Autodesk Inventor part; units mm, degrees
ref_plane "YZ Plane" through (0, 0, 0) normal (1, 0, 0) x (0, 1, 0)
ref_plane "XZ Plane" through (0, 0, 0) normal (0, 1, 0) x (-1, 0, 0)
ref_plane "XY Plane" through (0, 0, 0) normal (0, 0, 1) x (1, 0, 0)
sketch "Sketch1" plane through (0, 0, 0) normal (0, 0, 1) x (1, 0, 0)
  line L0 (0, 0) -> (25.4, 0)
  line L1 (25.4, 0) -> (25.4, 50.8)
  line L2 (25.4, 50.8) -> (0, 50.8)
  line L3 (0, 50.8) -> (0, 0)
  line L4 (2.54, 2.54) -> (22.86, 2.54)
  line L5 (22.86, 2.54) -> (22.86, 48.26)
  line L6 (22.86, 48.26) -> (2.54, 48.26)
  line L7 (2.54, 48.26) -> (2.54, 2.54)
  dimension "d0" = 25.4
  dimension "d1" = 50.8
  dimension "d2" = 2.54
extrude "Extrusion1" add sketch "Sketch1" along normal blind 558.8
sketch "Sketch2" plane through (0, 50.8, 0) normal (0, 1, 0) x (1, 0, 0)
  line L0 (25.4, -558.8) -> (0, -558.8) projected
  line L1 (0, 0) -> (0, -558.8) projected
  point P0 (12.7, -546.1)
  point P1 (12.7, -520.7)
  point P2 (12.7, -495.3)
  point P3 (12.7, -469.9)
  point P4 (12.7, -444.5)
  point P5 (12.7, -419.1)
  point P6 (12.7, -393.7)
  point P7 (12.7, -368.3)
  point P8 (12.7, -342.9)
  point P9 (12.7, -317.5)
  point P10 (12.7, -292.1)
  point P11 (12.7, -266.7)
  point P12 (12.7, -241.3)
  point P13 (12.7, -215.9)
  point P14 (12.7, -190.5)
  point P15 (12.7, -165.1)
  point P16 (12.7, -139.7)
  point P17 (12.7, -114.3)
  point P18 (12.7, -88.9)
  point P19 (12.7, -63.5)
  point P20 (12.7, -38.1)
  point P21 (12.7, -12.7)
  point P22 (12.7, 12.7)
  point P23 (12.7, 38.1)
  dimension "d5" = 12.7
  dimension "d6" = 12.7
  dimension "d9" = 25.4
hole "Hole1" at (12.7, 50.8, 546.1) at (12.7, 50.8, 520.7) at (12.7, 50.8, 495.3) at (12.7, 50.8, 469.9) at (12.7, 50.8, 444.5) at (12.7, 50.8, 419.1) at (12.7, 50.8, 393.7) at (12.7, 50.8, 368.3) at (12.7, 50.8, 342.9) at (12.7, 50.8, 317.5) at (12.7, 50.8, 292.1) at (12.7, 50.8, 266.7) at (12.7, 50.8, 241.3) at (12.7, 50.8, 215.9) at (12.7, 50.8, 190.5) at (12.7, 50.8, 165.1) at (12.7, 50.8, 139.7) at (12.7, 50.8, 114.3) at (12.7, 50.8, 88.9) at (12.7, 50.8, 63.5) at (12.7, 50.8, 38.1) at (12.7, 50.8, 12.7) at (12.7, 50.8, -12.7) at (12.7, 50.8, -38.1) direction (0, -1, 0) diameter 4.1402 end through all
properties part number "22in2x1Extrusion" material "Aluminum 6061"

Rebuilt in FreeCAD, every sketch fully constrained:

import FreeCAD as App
import Part
import Sketcher

V = App.Vector
Q = App.Units.Quantity

doc = App.newDocument("Part")
body = doc.addObject("PartDesign::Body", "Body")

sketch1 = body.newObject("Sketcher::SketchObject", "Sketch")
sketch1.AttachmentSupport = (doc.getObject("XY_Plane"), [""])
sketch1.MapMode = "FlatFace"
sketch1.addGeometry(Part.LineSegment(V(0, 51, 0), V(0, 0, 0)), False)
sketch1.addGeometry(Part.LineSegment(V(0, 0, 0), V(25, 0, 0)), False)
sketch1.addGeometry(Part.LineSegment(V(25, 0, 0), V(25, 51, 0)), False)
sketch1.addGeometry(Part.LineSegment(V(25, 51, 0), V(0, 51, 0)), False)
sketch1.addGeometry(Part.LineSegment(V(23, 3, 0), V(3, 3, 0)), False)
sketch1.addGeometry(Part.LineSegment(V(3, 3, 0), V(3, 48, 0)), False)
sketch1.addGeometry(Part.LineSegment(V(3, 48, 0), V(23, 48, 0)), False)
sketch1.addGeometry(Part.LineSegment(V(23, 48, 0), V(23, 3, 0)), False)
sketch1.addConstraint(Sketcher.Constraint("Coincident", 0, 2, 1, 1))
sketch1.addConstraint(Sketcher.Constraint("Coincident", 1, 2, 2, 1))
sketch1.addConstraint(Sketcher.Constraint("Coincident", 2, 2, 3, 1))
sketch1.addConstraint(Sketcher.Constraint("Coincident", 3, 2, 0, 1))
sketch1.addConstraint(Sketcher.Constraint("Coincident", 4, 2, 5, 1))
sketch1.addConstraint(Sketcher.Constraint("Coincident", 5, 2, 6, 1))
sketch1.addConstraint(Sketcher.Constraint("Coincident", 6, 2, 7, 1))
sketch1.addConstraint(Sketcher.Constraint("Coincident", 7, 2, 4, 1))
sketch1.addConstraint(Sketcher.Constraint("Vertical", 0))
sketch1.addConstraint(Sketcher.Constraint("Horizontal", 1))
sketch1.addConstraint(Sketcher.Constraint("Vertical", 2))
sketch1.addConstraint(Sketcher.Constraint("Horizontal", 3))
sketch1.addConstraint(Sketcher.Constraint("Horizontal", 4))
sketch1.addConstraint(Sketcher.Constraint("Vertical", 5))
sketch1.addConstraint(Sketcher.Constraint("Horizontal", 6))
sketch1.addConstraint(Sketcher.Constraint("Vertical", 7))
sketch1.addConstraint(Sketcher.Constraint("Coincident", 0, 2, -1, 1))
sketch1.addConstraint(Sketcher.Constraint("DistanceX", 1, 1, 1, 2, Q("1 in")))
sketch1.addConstraint(Sketcher.Constraint("DistanceY", 0, 2, 0, 1, Q("2 in")))
sketch1.addConstraint(Sketcher.Constraint("DistanceX", -1, 1, 4, 2, Q("0.1 in")))
sketch1.addConstraint(Sketcher.Constraint("DistanceY", -1, 1, 4, 2, Q("0.1 in")))
sketch1.addConstraint(Sketcher.Constraint("DistanceY", 5, 2, 3, 2, Q("0.1 in")))
sketch1.addConstraint(Sketcher.Constraint("DistanceX", 6, 2, 2, 2, Q("0.1 in")))
pad1 = body.newObject("PartDesign::Pad", "Pad")
pad1.Profile = sketch1
pad1.Length = Q("22 in")

sketch2 = body.newObject("Sketcher::SketchObject", "Sketch001")
sketch2.AttachmentSupport = (doc.getObject("XZ_Plane"), [""])
sketch2.MapMode = "FlatFace"
sketch2.AttachmentOffset = App.Placement(V(0, 0, -2 * 25.4), App.Rotation())
sketch2.addGeometry(Part.Circle(V(12.7, 546.1, 0), V(0, 0, 1), 2.1), False)
sketch2.addGeometry(Part.Circle(V(12.7, 520.7, 0), V(0, 0, 1), 2.1), False)
sketch2.addGeometry(Part.Circle(V(12.7, 495.3, 0), V(0, 0, 1), 2.1), False)
sketch2.addGeometry(Part.Circle(V(12.7, 469.9, 0), V(0, 0, 1), 2.1), False)
sketch2.addGeometry(Part.Circle(V(12.7, 444.5, 0), V(0, 0, 1), 2.1), False)
sketch2.addGeometry(Part.Circle(V(12.7, 419.1, 0), V(0, 0, 1), 2.1), False)
sketch2.addGeometry(Part.Circle(V(12.7, 393.7, 0), V(0, 0, 1), 2.1), False)
sketch2.addGeometry(Part.Circle(V(12.7, 368.3, 0), V(0, 0, 1), 2.1), False)
sketch2.addGeometry(Part.Circle(V(12.7, 342.9, 0), V(0, 0, 1), 2.1), False)
sketch2.addGeometry(Part.Circle(V(12.7, 317.5, 0), V(0, 0, 1), 2.1), False)
sketch2.addGeometry(Part.Circle(V(12.7, 292.1, 0), V(0, 0, 1), 2.1), False)
sketch2.addGeometry(Part.Circle(V(12.7, 266.7, 0), V(0, 0, 1), 2.1), False)
sketch2.addGeometry(Part.Circle(V(12.7, 241.3, 0), V(0, 0, 1), 2.1), False)
sketch2.addGeometry(Part.Circle(V(12.7, 215.9, 0), V(0, 0, 1), 2.1), False)
sketch2.addGeometry(Part.Circle(V(12.7, 190.5, 0), V(0, 0, 1), 2.1), False)
sketch2.addGeometry(Part.Circle(V(12.7, 165.1, 0), V(0, 0, 1), 2.1), False)
sketch2.addGeometry(Part.Circle(V(12.7, 139.7, 0), V(0, 0, 1), 2.1), False)
sketch2.addGeometry(Part.Circle(V(12.7, 114.3, 0), V(0, 0, 1), 2.1), False)
sketch2.addGeometry(Part.Circle(V(12.7, 88.9, 0), V(0, 0, 1), 2.1), False)
sketch2.addGeometry(Part.Circle(V(12.7, 63.5, 0), V(0, 0, 1), 2.1), False)
sketch2.addGeometry(Part.Circle(V(12.7, 38.1, 0), V(0, 0, 1), 2.1), False)
sketch2.addGeometry(Part.Circle(V(12.7, 12.7, 0), V(0, 0, 1), 2.1), False)
sketch2.addGeometry(Part.Circle(V(12.7, -12.7, 0), V(0, 0, 1), 2.1), False)
sketch2.addGeometry(Part.Circle(V(12.7, -38.1, 0), V(0, 0, 1), 2.1), False)
sketch2.addConstraint(Sketcher.Constraint("Equal", 0, 1))
sketch2.addConstraint(Sketcher.Constraint("Equal", 1, 2))
sketch2.addConstraint(Sketcher.Constraint("Equal", 2, 3))
sketch2.addConstraint(Sketcher.Constraint("Equal", 3, 4))
sketch2.addConstraint(Sketcher.Constraint("Equal", 4, 5))
sketch2.addConstraint(Sketcher.Constraint("Equal", 5, 6))
sketch2.addConstraint(Sketcher.Constraint("Equal", 6, 7))
sketch2.addConstraint(Sketcher.Constraint("Equal", 7, 8))
sketch2.addConstraint(Sketcher.Constraint("Equal", 8, 9))
sketch2.addConstraint(Sketcher.Constraint("Equal", 9, 10))
sketch2.addConstraint(Sketcher.Constraint("Equal", 10, 11))
sketch2.addConstraint(Sketcher.Constraint("Equal", 11, 12))
sketch2.addConstraint(Sketcher.Constraint("Equal", 12, 13))
sketch2.addConstraint(Sketcher.Constraint("Equal", 13, 14))
sketch2.addConstraint(Sketcher.Constraint("Equal", 14, 15))
sketch2.addConstraint(Sketcher.Constraint("Equal", 15, 16))
sketch2.addConstraint(Sketcher.Constraint("Equal", 16, 17))
sketch2.addConstraint(Sketcher.Constraint("Equal", 17, 18))
sketch2.addConstraint(Sketcher.Constraint("Equal", 18, 19))
sketch2.addConstraint(Sketcher.Constraint("Equal", 19, 20))
sketch2.addConstraint(Sketcher.Constraint("Equal", 20, 21))
sketch2.addConstraint(Sketcher.Constraint("Equal", 21, 22))
sketch2.addConstraint(Sketcher.Constraint("Equal", 22, 23))
sketch2.addConstraint(Sketcher.Constraint("Symmetric", 21, 3, 22, 3, -1))
sketch2.addConstraint(Sketcher.Constraint("Symmetric", 20, 3, 23, 3, -1))
sketch2.addConstraint(Sketcher.Constraint("Vertical", 0, 3, 1, 3))
sketch2.addConstraint(Sketcher.Constraint("Vertical", 1, 3, 2, 3))
sketch2.addConstraint(Sketcher.Constraint("Vertical", 2, 3, 3, 3))
sketch2.addConstraint(Sketcher.Constraint("Vertical", 3, 3, 4, 3))
sketch2.addConstraint(Sketcher.Constraint("Vertical", 4, 3, 5, 3))
sketch2.addConstraint(Sketcher.Constraint("Vertical", 5, 3, 6, 3))
sketch2.addConstraint(Sketcher.Constraint("Vertical", 6, 3, 7, 3))
sketch2.addConstraint(Sketcher.Constraint("Vertical", 7, 3, 8, 3))
sketch2.addConstraint(Sketcher.Constraint("Vertical", 8, 3, 9, 3))
sketch2.addConstraint(Sketcher.Constraint("Vertical", 9, 3, 10, 3))
sketch2.addConstraint(Sketcher.Constraint("Vertical", 10, 3, 11, 3))
sketch2.addConstraint(Sketcher.Constraint("Vertical", 11, 3, 12, 3))
sketch2.addConstraint(Sketcher.Constraint("Vertical", 12, 3, 13, 3))
sketch2.addConstraint(Sketcher.Constraint("Vertical", 13, 3, 14, 3))
sketch2.addConstraint(Sketcher.Constraint("Vertical", 14, 3, 15, 3))
sketch2.addConstraint(Sketcher.Constraint("Vertical", 15, 3, 16, 3))
sketch2.addConstraint(Sketcher.Constraint("Vertical", 16, 3, 17, 3))
sketch2.addConstraint(Sketcher.Constraint("Vertical", 17, 3, 18, 3))
sketch2.addConstraint(Sketcher.Constraint("Vertical", 18, 3, 19, 3))
sketch2.addConstraint(Sketcher.Constraint("Vertical", 19, 3, 20, 3))
sketch2.addConstraint(Sketcher.Constraint("Vertical", 20, 3, 21, 3))
sketch2.addConstraint(Sketcher.Constraint("Diameter", 0, Q("0.163 in")))
sketch2.addConstraint(Sketcher.Constraint("DistanceY", 1, 3, 0, 3, Q("1 in")))
sketch2.addConstraint(Sketcher.Constraint("DistanceY", 2, 3, 1, 3, Q("1 in")))
sketch2.addConstraint(Sketcher.Constraint("DistanceY", 3, 3, 2, 3, Q("1 in")))
sketch2.addConstraint(Sketcher.Constraint("DistanceY", 4, 3, 3, 3, Q("1 in")))
sketch2.addConstraint(Sketcher.Constraint("DistanceY", 5, 3, 4, 3, Q("1 in")))
sketch2.addConstraint(Sketcher.Constraint("DistanceY", 6, 3, 5, 3, Q("1 in")))
sketch2.addConstraint(Sketcher.Constraint("DistanceY", 7, 3, 6, 3, Q("1 in")))
sketch2.addConstraint(Sketcher.Constraint("DistanceY", 8, 3, 7, 3, Q("1 in")))
sketch2.addConstraint(Sketcher.Constraint("DistanceY", 9, 3, 8, 3, Q("1 in")))
sketch2.addConstraint(Sketcher.Constraint("DistanceY", 10, 3, 9, 3, Q("1 in")))
sketch2.addConstraint(Sketcher.Constraint("DistanceY", 11, 3, 10, 3, Q("1 in")))
sketch2.addConstraint(Sketcher.Constraint("DistanceY", 12, 3, 11, 3, Q("1 in")))
sketch2.addConstraint(Sketcher.Constraint("DistanceY", 13, 3, 12, 3, Q("1 in")))
sketch2.addConstraint(Sketcher.Constraint("DistanceY", 14, 3, 13, 3, Q("1 in")))
sketch2.addConstraint(Sketcher.Constraint("DistanceY", 15, 3, 14, 3, Q("1 in")))
sketch2.addConstraint(Sketcher.Constraint("DistanceY", 16, 3, 15, 3, Q("1 in")))
sketch2.addConstraint(Sketcher.Constraint("DistanceY", 17, 3, 16, 3, Q("1 in")))
sketch2.addConstraint(Sketcher.Constraint("DistanceY", 18, 3, 17, 3, Q("1 in")))
sketch2.addConstraint(Sketcher.Constraint("DistanceY", 19, 3, 18, 3, Q("1 in")))
sketch2.addConstraint(Sketcher.Constraint("DistanceY", 20, 3, 19, 3, Q("1 in")))
sketch2.addConstraint(Sketcher.Constraint("DistanceY", 21, 3, 20, 3, Q("1 in")))
sketch2.addConstraint(Sketcher.Constraint("DistanceY", 22, 3, 21, 3, Q("1 in")))
sketch2.addConstraint(Sketcher.Constraint("DistanceX", -1, 1, 0, 3, Q("0.5 in")))
doc.recompute()
hole = body.newObject("PartDesign::Hole", "Hole")
hole.Profile = sketch2
hole.ThreadType = "None"
hole.Diameter = Q("0.163 in")
hole.DepthType = "ThroughAll"
hole.Reversed = True

doc.recompute()
